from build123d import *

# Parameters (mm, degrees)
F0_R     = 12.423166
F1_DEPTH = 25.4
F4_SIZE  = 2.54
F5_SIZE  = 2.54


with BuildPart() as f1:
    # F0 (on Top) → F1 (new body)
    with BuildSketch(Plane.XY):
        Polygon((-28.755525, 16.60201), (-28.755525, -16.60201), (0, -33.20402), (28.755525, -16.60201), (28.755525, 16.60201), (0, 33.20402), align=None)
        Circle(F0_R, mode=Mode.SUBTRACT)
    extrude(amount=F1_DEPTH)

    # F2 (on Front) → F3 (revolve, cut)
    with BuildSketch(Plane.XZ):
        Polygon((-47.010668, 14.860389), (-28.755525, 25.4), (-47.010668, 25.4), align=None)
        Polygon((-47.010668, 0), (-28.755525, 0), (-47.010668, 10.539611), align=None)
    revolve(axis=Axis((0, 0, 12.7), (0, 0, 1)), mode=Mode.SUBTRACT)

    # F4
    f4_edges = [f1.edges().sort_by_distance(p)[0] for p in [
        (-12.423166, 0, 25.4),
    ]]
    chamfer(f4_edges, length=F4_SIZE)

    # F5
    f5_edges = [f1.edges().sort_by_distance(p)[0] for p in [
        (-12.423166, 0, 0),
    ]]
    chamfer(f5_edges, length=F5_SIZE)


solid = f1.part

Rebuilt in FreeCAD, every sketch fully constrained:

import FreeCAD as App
import Part
import Sketcher
from FreeCAD import Vector
Q = App.Units.Quantity


def edges_at(feature, points):
    """Names of the edges that pass closest to the given points."""
    edges = feature.Shape.Edges
    near = lambda p: min(range(len(edges)), key=lambda i: edges[i].distToShape(Part.Vertex(*p))[0])
    return sorted({f"Edge{near(p) + 1}" for p in points})


def add_polygon(sketch, points):
    """Adds a closed chain of lines whose ends are joined by coincident constraints."""
    first, n = sketch.GeometryCount, len(points)
    for a, b in zip(points, points[1:] + points[:1]):
        sketch.addGeometry(Part.LineSegment(App.Vector(*a, 0), App.Vector(*b, 0)), False)
    for i in range(n):
        sketch.addConstraint(Sketcher.Constraint("Coincident", first + i, 2, first + (i + 1) % n, 1))

doc = App.newDocument("Part")
body = doc.addObject("PartDesign::Body", "Body")

sketch1 = body.newObject("Sketcher::SketchObject", "Sketch")
sketch1.AttachmentSupport = (doc.getObject("XY_Plane"), [""])
sketch1.MapMode = "FlatFace"
add_polygon(sketch1, [(-29, 17), (-29, -17), (0, -33), (29, -17), (29, 17), (0, 33)])
sketch1.addGeometry(Part.Circle(Vector(0, 0, 0), Vector(0, 0, 1), 12), False)
sketch1.addConstraint(Sketcher.Constraint("Vertical", 0))
sketch1.addConstraint(Sketcher.Constraint("Vertical", 3))
sketch1.addConstraint(Sketcher.Constraint("Coincident", 6, 3, -1, 1))
sketch1.addConstraint(Sketcher.Constraint("Symmetric", 0, 2, 3, 2, -1, 1))
sketch1.addConstraint(Sketcher.Constraint("Symmetric", 1, 2, 4, 2, -1, 1))
sketch1.addConstraint(Sketcher.Constraint("PointOnObject", 1, 2, -2))
sketch1.addConstraint(Sketcher.Constraint("Parallel", 2, 5))
sketch1.addConstraint(Sketcher.Constraint("Horizontal", 0, 2, 2, 2))
sketch1.addConstraint(Sketcher.Constraint("Angle", 1, Q("-30 deg")))
sketch1.addConstraint(Sketcher.Constraint("Diameter", 6, 24.846332))
sketch1.addConstraint(Sketcher.Constraint("DistanceY", 0, 2, 0, 1, 33.20402))
sketch1.addConstraint(Sketcher.Constraint("Distance", 1, 33.20402))
pad1 = body.newObject("PartDesign::Pad", "Pad")
pad1.Profile = sketch1
pad1.Length = Q("1 in")

sketch2 = body.newObject("Sketcher::SketchObject", "Sketch001")
sketch2.AttachmentSupport = (doc.getObject("XZ_Plane"), [""])
sketch2.MapMode = "FlatFace"
add_polygon(sketch2, [(-47, 15), (-29, 25), (-47, 25)])
add_polygon(sketch2, [(-47, 0), (-29, 0), (-47, 11)])
sketch2.addConstraint(Sketcher.Constraint("Horizontal", 1))
sketch2.addConstraint(Sketcher.Constraint("Vertical", 2))
sketch2.addConstraint(Sketcher.Constraint("Horizontal", 3))
sketch2.addConstraint(Sketcher.Constraint("Vertical", 5))
sketch2.addConstraint(Sketcher.Constraint("PointOnObject", 3, 2, -1))
sketch2.addConstraint(Sketcher.Constraint("Vertical", 0, 2, 3, 2))
sketch2.addConstraint(Sketcher.Constraint("Vertical", 2, 2, 4, 2))
sketch2.addConstraint(Sketcher.Constraint("Equal", 2, 5))
sketch2.addConstraint(Sketcher.Constraint("DistanceY", -1, 1, 0, 2, Q("1 in")))
sketch2.addConstraint(Sketcher.Constraint("Angle", 0, Q("29.999998 deg")))
sketch2.addConstraint(Sketcher.Constraint("DistanceY", 2, 2, 2, 1, 10.539611))
sketch2.addConstraint(Sketcher.Constraint("DistanceX", 1, 2, -1, 1, 47.010668))
groove = body.newObject("PartDesign::Groove", "Groove")
groove.Profile = sketch2
groove.ReferenceAxis = (sketch2, ["V_Axis"])
groove.Angle = 360
doc.recompute()

chamfer = body.newObject("PartDesign::Chamfer", "Chamfer")
chamfer.Base = (groove, edges_at(groove, [(-12.423, 0, 25.4)]))
chamfer.Size = Q("0.1 in")
doc.recompute()

chamfer2 = body.newObject("PartDesign::Chamfer", "Chamfer001")
chamfer2.Base = (chamfer, edges_at(chamfer, [(-12.423, 0, 0)]))
chamfer2.Size = Q("0.1 in")

doc.recompute()
